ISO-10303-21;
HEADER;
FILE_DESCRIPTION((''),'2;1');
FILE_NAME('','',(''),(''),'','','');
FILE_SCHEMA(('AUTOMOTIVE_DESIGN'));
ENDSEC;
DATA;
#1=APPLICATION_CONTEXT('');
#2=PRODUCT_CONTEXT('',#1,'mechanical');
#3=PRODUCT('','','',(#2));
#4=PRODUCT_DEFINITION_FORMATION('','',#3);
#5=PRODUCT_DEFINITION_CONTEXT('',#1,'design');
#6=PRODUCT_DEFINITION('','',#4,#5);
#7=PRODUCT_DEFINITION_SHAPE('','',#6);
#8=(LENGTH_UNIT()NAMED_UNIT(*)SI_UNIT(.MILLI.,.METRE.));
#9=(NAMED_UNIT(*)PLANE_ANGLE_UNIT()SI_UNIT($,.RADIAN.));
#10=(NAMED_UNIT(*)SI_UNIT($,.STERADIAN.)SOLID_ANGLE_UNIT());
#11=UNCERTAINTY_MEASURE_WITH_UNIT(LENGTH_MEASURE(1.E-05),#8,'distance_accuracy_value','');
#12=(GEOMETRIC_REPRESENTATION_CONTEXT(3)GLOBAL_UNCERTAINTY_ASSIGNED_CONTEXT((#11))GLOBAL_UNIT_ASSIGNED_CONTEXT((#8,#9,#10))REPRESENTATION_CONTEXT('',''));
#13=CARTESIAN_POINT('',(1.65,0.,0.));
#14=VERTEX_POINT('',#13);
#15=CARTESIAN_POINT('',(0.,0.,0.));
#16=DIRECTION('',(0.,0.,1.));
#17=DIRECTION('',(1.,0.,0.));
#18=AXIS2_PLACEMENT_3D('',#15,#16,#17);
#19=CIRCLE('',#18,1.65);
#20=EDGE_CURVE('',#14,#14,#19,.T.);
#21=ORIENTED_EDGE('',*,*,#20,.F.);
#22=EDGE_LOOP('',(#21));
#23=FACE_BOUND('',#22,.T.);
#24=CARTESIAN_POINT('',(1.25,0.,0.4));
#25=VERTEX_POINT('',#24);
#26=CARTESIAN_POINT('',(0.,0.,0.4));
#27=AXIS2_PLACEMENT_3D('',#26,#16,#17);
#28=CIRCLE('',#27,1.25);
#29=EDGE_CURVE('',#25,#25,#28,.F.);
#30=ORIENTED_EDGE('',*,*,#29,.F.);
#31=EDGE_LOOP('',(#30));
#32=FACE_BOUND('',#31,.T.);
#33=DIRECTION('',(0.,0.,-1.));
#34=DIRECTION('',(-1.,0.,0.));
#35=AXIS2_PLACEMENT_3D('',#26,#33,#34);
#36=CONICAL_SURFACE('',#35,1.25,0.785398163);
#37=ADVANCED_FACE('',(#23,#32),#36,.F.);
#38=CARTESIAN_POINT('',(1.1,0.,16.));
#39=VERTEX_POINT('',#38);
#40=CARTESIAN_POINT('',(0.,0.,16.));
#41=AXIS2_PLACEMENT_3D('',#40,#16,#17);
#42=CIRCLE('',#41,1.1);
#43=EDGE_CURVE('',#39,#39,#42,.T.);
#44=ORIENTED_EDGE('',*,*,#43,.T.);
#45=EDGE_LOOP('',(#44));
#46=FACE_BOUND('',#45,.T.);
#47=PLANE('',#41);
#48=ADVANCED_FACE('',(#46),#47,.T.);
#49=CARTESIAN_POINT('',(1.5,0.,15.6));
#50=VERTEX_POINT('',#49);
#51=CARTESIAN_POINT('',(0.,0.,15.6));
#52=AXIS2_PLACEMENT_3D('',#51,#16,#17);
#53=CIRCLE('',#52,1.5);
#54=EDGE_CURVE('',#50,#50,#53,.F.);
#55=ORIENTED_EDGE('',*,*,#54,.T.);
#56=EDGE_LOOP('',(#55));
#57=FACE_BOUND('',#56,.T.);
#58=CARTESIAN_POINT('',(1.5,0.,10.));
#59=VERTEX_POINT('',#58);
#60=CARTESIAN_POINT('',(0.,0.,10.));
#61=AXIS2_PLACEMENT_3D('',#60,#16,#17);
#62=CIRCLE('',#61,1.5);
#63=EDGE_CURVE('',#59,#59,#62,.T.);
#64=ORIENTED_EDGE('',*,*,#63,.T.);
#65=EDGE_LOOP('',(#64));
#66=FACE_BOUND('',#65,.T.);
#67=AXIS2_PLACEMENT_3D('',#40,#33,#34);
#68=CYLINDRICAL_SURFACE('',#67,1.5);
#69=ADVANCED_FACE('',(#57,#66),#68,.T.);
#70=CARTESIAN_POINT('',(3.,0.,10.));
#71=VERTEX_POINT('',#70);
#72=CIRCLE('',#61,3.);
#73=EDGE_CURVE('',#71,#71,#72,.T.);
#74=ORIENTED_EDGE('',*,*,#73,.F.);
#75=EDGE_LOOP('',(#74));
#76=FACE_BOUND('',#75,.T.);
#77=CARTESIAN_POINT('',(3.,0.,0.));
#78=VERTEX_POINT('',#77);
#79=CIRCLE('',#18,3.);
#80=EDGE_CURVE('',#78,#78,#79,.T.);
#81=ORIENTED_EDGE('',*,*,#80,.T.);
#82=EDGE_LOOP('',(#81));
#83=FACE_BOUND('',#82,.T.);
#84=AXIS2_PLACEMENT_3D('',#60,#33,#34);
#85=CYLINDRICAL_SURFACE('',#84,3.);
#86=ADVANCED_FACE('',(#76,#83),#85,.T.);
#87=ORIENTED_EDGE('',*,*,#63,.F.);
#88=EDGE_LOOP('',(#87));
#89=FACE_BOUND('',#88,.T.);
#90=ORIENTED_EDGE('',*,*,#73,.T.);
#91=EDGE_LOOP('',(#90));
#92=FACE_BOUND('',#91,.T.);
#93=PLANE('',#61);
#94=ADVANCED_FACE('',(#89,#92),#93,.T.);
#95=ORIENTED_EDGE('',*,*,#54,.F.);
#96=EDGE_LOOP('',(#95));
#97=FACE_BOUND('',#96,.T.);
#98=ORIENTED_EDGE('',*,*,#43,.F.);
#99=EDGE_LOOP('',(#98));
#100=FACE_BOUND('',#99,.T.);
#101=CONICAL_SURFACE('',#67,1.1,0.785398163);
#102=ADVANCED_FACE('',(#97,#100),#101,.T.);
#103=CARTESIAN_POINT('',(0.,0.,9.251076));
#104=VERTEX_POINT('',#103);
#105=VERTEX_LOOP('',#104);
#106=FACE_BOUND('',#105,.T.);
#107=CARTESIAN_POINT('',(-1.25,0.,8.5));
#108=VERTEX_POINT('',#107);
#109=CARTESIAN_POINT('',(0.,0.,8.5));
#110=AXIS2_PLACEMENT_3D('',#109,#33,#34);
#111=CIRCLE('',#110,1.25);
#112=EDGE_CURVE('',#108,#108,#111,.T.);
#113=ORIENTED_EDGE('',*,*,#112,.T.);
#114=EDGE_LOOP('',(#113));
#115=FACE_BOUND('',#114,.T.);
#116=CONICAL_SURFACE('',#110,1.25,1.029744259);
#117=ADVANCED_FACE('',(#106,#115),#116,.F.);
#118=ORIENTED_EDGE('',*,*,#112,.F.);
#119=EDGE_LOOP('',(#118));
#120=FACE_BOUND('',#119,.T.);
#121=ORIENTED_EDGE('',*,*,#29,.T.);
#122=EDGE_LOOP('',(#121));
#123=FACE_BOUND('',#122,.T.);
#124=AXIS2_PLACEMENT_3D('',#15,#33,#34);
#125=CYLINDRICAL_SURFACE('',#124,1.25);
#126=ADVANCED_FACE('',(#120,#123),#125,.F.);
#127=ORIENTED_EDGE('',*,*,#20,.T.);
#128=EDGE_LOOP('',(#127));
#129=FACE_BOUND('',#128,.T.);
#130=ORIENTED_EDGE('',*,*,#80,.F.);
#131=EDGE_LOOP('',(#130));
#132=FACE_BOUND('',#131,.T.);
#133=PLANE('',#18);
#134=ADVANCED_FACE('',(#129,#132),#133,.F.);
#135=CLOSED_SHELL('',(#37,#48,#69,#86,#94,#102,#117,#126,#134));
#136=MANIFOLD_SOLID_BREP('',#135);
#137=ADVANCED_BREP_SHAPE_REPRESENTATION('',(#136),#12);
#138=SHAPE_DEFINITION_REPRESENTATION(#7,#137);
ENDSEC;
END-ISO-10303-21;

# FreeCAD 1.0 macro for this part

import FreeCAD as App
import Part
import Sketcher

V = App.Vector
Q = App.Units.Quantity


def edges_at(feature, points):
    """Names of the edges that pass closest to the given points."""
    edges = feature.Shape.Edges
    near = lambda p: min(range(len(edges)), key=lambda i: edges[i].distToShape(Part.Vertex(*p))[0])
    return sorted({f"Edge{near(p) + 1}" for p in points})

doc = App.newDocument("Part")
body = doc.addObject("PartDesign::Body", "Body")

# Sketch on XY plane
sketch1 = body.newObject("Sketcher::SketchObject", "Sketch")
sketch1.AttachmentSupport = (doc.getObject("XY_Plane"), [""])
sketch1.MapMode = "FlatFace"
sketch1.addGeometry(Part.Circle(V(0, 0, 0), V(0, 0, 1), 3), False)
sketch1.addConstraint(Sketcher.Constraint("Coincident", 0, 3, -1, 1))
sketch1.addConstraint(Sketcher.Constraint("Diameter", 0, Q("6 mm")))
pad1 = body.newObject("PartDesign::Pad", "Pad")
pad1.Profile = sketch1
pad1.Length = 10

# Sketch on XY plane
sketch2 = body.newObject("Sketcher::SketchObject", "Sketch001")
sketch2.AttachmentSupport = (doc.getObject("XY_Plane"), [""])
sketch2.MapMode = "FlatFace"
sketch2.AttachmentOffset = App.Placement(V(0, 0, 10), App.Rotation())
sketch2.addGeometry(Part.Circle(V(0, 0, 0), V(0, 0, 1), 1.5), False)
sketch2.addConstraint(Sketcher.Constraint("Coincident", 0, 3, -1, 1))
sketch2.addConstraint(Sketcher.Constraint("Diameter", 0, Q("3 mm")))
pad2 = body.newObject("PartDesign::Pad", "Pad001")
pad2.Profile = sketch2
pad2.Length = 6

# Sketch on XY plane
sketch3 = body.newObject("Sketcher::SketchObject", "Sketch002")
sketch3.AttachmentSupport = (doc.getObject("XY_Plane"), [""])
sketch3.MapMode = "FlatFace"
sketch3.addGeometry(Part.Circle(V(0, 0, 0), V(0, 0, 1), 1.2), False)
sketch3.addConstraint(Sketcher.Constraint("Coincident", 0, 3, -1, 1))
sketch3.addConstraint(Sketcher.Constraint("Diameter", 0, Q("2.5 mm")))
doc.recompute()
hole = body.newObject("PartDesign::Hole", "Hole")
hole.Profile = sketch3
hole.ThreadType = "None"
hole.Diameter = 2.5
hole.DepthType = "Dimension"
hole.Depth = 8.5
hole.DrillPoint = "Angled"
hole.DrillPointAngle = 118
hole.Reversed = True
doc.recompute()

chamfer = body.newObject("PartDesign::Chamfer", "Chamfer")
chamfer.Base = (hole, edges_at(hole, [(1.25, 0, 0), (-1.5, 0, 16)]))
chamfer.Size = 0.4

doc.recompute()
